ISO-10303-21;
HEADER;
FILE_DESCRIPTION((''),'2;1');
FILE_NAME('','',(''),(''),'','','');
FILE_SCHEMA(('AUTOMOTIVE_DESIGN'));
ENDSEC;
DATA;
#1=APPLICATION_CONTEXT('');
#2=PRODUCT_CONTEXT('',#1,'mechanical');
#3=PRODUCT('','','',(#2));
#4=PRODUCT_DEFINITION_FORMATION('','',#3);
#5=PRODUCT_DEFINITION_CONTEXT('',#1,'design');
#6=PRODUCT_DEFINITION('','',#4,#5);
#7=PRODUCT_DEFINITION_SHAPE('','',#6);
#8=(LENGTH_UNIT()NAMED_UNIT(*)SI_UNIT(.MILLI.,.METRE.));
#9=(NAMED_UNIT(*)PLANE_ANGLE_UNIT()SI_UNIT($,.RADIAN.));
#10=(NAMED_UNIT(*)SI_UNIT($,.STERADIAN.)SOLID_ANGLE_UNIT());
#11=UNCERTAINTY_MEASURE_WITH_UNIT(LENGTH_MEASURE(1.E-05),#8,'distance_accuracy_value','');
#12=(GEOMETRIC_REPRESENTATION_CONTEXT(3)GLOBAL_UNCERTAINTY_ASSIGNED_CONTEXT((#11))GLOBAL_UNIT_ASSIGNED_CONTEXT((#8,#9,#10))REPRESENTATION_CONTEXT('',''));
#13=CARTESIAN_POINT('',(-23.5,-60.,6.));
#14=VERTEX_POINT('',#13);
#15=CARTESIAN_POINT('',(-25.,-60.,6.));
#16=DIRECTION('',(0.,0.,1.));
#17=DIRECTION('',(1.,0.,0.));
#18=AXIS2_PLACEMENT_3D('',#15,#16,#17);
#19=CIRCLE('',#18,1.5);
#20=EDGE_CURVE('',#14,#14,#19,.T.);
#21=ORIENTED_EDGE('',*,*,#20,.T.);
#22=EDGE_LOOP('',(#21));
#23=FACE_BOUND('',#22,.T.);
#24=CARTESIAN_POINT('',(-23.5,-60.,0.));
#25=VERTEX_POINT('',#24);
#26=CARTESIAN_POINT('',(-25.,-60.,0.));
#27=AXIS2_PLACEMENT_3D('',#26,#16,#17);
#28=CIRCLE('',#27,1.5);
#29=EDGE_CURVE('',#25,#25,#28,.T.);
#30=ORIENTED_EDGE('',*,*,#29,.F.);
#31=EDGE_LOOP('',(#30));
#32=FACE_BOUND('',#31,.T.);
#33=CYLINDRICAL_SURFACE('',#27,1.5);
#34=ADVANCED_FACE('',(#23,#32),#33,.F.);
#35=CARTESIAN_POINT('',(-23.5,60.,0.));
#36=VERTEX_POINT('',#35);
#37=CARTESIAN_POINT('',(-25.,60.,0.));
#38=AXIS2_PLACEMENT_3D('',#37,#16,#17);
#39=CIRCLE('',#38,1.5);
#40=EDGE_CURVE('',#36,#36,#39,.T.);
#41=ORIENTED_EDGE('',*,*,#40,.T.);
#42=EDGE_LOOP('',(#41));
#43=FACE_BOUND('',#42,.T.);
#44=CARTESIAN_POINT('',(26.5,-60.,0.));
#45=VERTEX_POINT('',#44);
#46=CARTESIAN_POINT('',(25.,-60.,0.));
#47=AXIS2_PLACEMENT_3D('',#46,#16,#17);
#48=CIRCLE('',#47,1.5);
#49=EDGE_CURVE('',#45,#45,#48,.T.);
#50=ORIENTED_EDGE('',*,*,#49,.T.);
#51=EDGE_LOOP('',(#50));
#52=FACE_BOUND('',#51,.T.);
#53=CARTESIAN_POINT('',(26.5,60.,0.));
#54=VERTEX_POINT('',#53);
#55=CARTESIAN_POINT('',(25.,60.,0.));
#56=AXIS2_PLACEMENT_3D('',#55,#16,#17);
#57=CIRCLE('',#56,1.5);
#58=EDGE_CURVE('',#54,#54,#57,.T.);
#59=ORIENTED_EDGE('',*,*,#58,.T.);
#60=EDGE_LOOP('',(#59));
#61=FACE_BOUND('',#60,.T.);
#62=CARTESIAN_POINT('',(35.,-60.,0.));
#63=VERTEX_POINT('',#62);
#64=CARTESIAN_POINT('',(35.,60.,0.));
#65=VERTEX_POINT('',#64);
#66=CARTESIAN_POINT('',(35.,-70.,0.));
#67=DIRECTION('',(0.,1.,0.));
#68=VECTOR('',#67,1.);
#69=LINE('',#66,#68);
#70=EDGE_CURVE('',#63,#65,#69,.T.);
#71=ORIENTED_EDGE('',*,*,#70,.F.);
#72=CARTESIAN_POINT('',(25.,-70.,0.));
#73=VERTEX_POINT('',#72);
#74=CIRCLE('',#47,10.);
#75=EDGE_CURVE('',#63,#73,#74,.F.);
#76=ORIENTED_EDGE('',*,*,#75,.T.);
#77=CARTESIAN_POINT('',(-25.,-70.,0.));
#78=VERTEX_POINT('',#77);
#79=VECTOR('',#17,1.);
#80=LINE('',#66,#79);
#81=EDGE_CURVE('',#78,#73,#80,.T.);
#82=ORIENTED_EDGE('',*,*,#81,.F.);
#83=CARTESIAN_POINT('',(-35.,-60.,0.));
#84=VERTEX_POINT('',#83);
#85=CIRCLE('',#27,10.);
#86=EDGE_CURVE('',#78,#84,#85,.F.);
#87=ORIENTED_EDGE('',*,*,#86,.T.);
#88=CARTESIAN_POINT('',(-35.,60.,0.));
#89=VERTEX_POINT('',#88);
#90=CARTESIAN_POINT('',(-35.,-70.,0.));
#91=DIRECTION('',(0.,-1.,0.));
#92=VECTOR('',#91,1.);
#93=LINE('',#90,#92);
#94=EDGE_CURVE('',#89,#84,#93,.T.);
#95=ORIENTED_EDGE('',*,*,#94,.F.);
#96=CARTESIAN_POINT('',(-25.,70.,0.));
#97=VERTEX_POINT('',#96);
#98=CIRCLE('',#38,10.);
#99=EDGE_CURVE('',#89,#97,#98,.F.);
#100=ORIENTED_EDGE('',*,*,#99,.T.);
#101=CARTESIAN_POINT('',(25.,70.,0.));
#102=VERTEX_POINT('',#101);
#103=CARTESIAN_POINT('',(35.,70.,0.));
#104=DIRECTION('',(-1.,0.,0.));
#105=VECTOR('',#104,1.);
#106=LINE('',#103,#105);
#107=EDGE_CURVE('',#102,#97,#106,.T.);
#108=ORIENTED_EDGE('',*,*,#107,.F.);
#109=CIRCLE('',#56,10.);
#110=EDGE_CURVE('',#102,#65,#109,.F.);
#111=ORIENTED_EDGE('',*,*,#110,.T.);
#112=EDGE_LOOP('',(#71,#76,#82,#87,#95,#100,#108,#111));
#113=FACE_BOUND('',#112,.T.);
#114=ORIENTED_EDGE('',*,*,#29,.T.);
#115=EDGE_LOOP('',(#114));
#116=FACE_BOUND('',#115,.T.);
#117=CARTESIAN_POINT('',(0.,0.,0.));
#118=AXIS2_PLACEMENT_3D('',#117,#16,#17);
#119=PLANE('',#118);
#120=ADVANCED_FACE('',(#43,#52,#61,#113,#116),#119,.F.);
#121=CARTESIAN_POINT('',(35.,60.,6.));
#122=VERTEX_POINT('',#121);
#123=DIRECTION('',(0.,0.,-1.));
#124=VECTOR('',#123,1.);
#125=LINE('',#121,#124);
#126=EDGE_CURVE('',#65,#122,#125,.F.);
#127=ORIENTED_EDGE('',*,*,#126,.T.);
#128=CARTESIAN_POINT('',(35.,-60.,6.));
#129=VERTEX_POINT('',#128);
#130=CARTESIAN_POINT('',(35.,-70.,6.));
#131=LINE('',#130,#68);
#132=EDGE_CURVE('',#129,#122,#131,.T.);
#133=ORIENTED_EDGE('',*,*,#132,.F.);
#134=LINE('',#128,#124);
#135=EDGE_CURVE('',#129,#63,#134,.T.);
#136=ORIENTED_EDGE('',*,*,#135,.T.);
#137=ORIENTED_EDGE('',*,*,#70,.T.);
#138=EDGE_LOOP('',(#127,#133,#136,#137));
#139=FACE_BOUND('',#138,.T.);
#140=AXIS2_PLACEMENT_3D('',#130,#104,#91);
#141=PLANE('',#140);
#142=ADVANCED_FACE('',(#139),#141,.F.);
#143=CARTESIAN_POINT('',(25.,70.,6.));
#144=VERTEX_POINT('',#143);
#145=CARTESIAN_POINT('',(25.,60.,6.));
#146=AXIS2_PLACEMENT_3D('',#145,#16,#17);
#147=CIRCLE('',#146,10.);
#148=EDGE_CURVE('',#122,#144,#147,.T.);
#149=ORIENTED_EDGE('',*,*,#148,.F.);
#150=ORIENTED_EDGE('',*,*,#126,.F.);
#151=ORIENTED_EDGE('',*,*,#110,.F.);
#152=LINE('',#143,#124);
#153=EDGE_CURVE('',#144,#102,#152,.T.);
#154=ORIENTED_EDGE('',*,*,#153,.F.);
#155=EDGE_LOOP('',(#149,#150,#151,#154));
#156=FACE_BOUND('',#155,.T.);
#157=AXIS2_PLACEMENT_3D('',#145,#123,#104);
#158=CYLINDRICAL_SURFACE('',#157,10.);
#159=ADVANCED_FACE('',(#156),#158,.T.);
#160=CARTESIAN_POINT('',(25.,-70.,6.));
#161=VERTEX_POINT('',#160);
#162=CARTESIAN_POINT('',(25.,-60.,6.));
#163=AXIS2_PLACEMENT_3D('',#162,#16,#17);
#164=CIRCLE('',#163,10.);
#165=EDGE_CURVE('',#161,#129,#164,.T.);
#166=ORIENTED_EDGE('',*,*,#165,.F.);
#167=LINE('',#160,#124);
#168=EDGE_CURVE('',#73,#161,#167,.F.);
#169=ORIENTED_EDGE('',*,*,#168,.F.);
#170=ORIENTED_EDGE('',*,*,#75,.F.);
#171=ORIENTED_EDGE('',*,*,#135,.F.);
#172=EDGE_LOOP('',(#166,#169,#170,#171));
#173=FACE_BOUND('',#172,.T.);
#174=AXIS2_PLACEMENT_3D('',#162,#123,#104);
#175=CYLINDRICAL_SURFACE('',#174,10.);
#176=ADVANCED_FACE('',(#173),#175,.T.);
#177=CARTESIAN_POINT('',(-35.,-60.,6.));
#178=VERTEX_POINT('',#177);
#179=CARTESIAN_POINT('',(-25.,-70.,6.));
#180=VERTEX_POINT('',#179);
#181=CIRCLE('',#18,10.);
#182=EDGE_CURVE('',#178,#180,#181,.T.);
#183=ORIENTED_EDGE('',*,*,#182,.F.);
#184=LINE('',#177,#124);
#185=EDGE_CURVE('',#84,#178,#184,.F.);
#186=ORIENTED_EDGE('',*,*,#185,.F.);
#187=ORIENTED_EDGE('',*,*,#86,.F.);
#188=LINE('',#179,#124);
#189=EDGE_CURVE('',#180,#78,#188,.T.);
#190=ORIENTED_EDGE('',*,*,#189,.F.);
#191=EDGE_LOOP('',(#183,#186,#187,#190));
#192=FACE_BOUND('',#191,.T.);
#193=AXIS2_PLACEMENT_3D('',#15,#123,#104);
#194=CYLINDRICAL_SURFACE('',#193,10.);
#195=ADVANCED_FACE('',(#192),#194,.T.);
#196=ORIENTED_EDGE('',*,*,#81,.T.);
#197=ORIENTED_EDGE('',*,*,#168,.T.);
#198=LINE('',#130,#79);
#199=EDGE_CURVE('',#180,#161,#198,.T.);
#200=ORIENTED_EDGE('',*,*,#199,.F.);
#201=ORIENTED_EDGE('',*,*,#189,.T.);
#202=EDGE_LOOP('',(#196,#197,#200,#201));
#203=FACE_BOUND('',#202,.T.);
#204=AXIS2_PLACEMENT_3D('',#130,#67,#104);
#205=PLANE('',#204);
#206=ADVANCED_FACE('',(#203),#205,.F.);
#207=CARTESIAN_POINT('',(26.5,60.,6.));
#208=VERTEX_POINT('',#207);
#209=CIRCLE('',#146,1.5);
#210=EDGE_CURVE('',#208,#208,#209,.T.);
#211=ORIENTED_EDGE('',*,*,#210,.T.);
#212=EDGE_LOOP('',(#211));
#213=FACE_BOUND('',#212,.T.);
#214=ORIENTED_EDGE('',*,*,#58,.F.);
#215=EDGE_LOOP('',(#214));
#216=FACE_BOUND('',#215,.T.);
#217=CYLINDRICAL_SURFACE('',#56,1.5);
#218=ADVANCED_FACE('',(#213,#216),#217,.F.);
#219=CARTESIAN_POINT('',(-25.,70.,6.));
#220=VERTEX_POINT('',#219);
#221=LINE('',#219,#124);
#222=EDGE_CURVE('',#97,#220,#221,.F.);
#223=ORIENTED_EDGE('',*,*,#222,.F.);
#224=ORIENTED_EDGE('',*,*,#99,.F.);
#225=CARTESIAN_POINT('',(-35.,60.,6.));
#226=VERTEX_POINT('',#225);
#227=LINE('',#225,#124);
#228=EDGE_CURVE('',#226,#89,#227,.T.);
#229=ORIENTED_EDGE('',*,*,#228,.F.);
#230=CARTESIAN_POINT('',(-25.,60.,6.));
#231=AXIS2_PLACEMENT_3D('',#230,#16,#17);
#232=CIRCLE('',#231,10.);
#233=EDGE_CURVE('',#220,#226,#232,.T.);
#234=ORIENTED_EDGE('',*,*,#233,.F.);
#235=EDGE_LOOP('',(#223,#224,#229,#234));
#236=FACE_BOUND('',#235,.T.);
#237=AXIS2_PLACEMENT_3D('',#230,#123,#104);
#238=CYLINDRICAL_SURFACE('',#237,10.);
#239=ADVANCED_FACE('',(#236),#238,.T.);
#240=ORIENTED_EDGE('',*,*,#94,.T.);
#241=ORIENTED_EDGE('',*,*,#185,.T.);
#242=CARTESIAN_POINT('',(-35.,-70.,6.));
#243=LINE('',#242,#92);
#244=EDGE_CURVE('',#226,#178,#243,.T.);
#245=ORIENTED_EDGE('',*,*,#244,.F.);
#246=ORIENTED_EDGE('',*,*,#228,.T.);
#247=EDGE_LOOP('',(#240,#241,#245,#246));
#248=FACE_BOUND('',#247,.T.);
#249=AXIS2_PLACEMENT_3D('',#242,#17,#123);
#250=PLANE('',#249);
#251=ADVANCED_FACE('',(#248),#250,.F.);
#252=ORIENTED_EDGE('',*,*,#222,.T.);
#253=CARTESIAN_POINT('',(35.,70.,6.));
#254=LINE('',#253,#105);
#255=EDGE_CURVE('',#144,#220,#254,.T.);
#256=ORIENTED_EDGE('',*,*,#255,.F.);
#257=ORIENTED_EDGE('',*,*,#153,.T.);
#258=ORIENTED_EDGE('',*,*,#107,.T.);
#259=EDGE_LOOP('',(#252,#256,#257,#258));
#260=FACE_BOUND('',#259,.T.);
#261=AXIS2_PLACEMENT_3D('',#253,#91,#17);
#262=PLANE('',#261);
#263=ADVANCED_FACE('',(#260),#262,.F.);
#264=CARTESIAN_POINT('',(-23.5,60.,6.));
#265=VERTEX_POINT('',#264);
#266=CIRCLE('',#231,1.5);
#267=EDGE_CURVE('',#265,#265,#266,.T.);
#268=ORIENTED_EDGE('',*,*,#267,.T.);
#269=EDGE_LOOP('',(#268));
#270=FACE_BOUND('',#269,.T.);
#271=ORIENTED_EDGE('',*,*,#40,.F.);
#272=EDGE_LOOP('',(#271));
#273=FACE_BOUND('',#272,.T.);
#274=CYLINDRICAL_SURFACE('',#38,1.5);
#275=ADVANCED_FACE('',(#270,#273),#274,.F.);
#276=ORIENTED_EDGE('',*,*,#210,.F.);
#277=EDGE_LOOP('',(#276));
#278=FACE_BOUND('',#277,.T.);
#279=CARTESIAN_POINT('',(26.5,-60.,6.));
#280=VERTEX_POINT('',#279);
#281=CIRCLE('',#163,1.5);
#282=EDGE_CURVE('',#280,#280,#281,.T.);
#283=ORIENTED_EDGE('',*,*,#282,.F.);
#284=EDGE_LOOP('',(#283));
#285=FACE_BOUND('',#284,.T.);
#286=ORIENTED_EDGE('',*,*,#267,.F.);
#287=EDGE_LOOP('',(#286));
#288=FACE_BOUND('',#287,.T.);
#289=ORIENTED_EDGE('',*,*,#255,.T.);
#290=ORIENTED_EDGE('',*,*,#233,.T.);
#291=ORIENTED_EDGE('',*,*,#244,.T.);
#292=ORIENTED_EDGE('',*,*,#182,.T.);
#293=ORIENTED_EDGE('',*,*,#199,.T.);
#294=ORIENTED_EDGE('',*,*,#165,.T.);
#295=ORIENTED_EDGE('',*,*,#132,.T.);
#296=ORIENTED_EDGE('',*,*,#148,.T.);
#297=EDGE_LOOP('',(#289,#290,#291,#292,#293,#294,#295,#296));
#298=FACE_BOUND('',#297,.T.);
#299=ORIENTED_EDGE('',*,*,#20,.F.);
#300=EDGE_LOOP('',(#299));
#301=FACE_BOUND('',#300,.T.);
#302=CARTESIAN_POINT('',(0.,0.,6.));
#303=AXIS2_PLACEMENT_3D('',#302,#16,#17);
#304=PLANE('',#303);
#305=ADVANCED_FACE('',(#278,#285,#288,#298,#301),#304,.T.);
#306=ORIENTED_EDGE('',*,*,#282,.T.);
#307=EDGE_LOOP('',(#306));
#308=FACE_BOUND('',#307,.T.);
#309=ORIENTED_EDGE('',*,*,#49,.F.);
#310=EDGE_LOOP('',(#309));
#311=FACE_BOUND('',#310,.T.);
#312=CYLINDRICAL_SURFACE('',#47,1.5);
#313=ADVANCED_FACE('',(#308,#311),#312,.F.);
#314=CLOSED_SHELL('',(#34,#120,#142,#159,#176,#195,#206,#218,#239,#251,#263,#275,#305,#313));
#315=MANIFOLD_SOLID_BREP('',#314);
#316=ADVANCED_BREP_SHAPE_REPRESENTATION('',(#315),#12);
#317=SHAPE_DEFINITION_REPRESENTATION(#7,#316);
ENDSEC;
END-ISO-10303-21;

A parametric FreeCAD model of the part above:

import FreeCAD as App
import Part
import Sketcher
from FreeCAD import Vector


def edges_at(feature, points):
    """Names of the edges that pass closest to the given points."""
    edges = feature.Shape.Edges
    near = lambda p: min(range(len(edges)), key=lambda i: edges[i].distToShape(Part.Vertex(*p))[0])
    return sorted({f"Edge{near(p) + 1}" for p in points})

doc = App.newDocument("Part")
params = doc.addObject("Spreadsheet::Sheet", "Params")
for row, (alias, value) in enumerate([
    ("sketch1_width", "70 mm"),
    ("sketch1_height", "140 mm"),
    ("pad1_length", "6 mm"),
    ("fillet_radius", "10 mm"),
    ("sketch2_diameter", "3 mm"),
    ("pocket1_length", "6 mm"),
], start=1):
    params.set(f"A{row}", alias)
    params.set(f"B{row}", "=" + value)
    params.setAlias(f"B{row}", alias)

body = doc.addObject("PartDesign::Body", "Body")

sketch1 = body.newObject("Sketcher::SketchObject", "Sketch")
sketch1.AttachmentSupport = (doc.getObject("XY_Plane"), [""])
sketch1.MapMode = "FlatFace"
sketch1.addGeometry([
    Part.LineSegment(Vector(-35, 70, 0), Vector(-35, -70, 0)),
    Part.LineSegment(Vector(-35, -70, 0), Vector(35, -70, 0)),
    Part.LineSegment(Vector(35, -70, 0), Vector(35, 70, 0)),
    Part.LineSegment(Vector(35, 70, 0), Vector(-35, 70, 0)),
], False)
sketch1.addConstraint([
    Sketcher.Constraint("Coincident", 0, 2, 1, 1),
    Sketcher.Constraint("Coincident", 1, 2, 2, 1),
    Sketcher.Constraint("Coincident", 2, 2, 3, 1),
    Sketcher.Constraint("Coincident", 3, 2, 0, 1),
    Sketcher.Constraint("Vertical", 0),
    Sketcher.Constraint("Horizontal", 1),
    Sketcher.Constraint("Vertical", 2),
    Sketcher.Constraint("Horizontal", 3),
    Sketcher.Constraint("Symmetric", 0, 2, 2, 2, -1, 1),
    Sketcher.Constraint("DistanceX", 1, 1, 1, 2, 70.0),
    Sketcher.Constraint("DistanceY", 0, 2, 0, 1, 140.0),
])
sketch1.setExpression("Constraints[9]", "Params.sketch1_width")
sketch1.setExpression("Constraints[10]", "Params.sketch1_height")
pad1 = body.newObject("PartDesign::Pad", "Pad")
pad1.Profile = sketch1
pad1.setExpression("Length", "Params.pad1_length")
doc.recompute()

fillet = body.newObject("PartDesign::Fillet", "Fillet")
fillet.Base = (pad1, edges_at(pad1, [
    (-35, 70, 3),
    (35, 70, 3),
    (35, -70, 3),
    (-35, -70, 3),
]))
fillet.setExpression("Radius", "Params.fillet_radius")

sketch2 = body.newObject("Sketcher::SketchObject", "Sketch001")
sketch2.AttachmentSupport = (doc.getObject("XY_Plane"), [""])
sketch2.MapMode = "FlatFace"
sketch2.AttachmentOffset = App.Placement(Vector(0, 0, 6), App.Rotation())
sketch2.addGeometry([
    Part.Circle(Vector(-25, 60, 0), Vector(0, 0, 1), 1.5),
    Part.Circle(Vector(25, 60, 0), Vector(0, 0, 1), 1.5),
    Part.Circle(Vector(25, -60, 0), Vector(0, 0, 1), 1.5),
    Part.Circle(Vector(-25, -60, 0), Vector(0, 0, 1), 1.5),
], False)
sketch2.addConstraint([
    Sketcher.Constraint("Equal", 0, 1),
    Sketcher.Constraint("Equal", 1, 2),
    Sketcher.Constraint("Equal", 2, 3),
    Sketcher.Constraint("Symmetric", 0, 3, 2, 3, -1, 1),
    Sketcher.Constraint("Symmetric", 1, 3, 3, 3, -1, 1),
    Sketcher.Constraint("Symmetric", 0, 3, 1, 3, -2),
    Sketcher.Constraint("Diameter", 0, 3.0),
    Sketcher.Constraint("DistanceX", 0, 3, -1, 1, 25.0),
    Sketcher.Constraint("DistanceY", -1, 1, 0, 3, 60.0),
])
sketch2.setExpression("Constraints[6]", "Params.sketch2_diameter")
pocket1 = body.newObject("PartDesign::Pocket", "Pocket")
pocket1.Profile = sketch2
pocket1.setExpression("Length", "Params.pocket1_length")

doc.recompute()
